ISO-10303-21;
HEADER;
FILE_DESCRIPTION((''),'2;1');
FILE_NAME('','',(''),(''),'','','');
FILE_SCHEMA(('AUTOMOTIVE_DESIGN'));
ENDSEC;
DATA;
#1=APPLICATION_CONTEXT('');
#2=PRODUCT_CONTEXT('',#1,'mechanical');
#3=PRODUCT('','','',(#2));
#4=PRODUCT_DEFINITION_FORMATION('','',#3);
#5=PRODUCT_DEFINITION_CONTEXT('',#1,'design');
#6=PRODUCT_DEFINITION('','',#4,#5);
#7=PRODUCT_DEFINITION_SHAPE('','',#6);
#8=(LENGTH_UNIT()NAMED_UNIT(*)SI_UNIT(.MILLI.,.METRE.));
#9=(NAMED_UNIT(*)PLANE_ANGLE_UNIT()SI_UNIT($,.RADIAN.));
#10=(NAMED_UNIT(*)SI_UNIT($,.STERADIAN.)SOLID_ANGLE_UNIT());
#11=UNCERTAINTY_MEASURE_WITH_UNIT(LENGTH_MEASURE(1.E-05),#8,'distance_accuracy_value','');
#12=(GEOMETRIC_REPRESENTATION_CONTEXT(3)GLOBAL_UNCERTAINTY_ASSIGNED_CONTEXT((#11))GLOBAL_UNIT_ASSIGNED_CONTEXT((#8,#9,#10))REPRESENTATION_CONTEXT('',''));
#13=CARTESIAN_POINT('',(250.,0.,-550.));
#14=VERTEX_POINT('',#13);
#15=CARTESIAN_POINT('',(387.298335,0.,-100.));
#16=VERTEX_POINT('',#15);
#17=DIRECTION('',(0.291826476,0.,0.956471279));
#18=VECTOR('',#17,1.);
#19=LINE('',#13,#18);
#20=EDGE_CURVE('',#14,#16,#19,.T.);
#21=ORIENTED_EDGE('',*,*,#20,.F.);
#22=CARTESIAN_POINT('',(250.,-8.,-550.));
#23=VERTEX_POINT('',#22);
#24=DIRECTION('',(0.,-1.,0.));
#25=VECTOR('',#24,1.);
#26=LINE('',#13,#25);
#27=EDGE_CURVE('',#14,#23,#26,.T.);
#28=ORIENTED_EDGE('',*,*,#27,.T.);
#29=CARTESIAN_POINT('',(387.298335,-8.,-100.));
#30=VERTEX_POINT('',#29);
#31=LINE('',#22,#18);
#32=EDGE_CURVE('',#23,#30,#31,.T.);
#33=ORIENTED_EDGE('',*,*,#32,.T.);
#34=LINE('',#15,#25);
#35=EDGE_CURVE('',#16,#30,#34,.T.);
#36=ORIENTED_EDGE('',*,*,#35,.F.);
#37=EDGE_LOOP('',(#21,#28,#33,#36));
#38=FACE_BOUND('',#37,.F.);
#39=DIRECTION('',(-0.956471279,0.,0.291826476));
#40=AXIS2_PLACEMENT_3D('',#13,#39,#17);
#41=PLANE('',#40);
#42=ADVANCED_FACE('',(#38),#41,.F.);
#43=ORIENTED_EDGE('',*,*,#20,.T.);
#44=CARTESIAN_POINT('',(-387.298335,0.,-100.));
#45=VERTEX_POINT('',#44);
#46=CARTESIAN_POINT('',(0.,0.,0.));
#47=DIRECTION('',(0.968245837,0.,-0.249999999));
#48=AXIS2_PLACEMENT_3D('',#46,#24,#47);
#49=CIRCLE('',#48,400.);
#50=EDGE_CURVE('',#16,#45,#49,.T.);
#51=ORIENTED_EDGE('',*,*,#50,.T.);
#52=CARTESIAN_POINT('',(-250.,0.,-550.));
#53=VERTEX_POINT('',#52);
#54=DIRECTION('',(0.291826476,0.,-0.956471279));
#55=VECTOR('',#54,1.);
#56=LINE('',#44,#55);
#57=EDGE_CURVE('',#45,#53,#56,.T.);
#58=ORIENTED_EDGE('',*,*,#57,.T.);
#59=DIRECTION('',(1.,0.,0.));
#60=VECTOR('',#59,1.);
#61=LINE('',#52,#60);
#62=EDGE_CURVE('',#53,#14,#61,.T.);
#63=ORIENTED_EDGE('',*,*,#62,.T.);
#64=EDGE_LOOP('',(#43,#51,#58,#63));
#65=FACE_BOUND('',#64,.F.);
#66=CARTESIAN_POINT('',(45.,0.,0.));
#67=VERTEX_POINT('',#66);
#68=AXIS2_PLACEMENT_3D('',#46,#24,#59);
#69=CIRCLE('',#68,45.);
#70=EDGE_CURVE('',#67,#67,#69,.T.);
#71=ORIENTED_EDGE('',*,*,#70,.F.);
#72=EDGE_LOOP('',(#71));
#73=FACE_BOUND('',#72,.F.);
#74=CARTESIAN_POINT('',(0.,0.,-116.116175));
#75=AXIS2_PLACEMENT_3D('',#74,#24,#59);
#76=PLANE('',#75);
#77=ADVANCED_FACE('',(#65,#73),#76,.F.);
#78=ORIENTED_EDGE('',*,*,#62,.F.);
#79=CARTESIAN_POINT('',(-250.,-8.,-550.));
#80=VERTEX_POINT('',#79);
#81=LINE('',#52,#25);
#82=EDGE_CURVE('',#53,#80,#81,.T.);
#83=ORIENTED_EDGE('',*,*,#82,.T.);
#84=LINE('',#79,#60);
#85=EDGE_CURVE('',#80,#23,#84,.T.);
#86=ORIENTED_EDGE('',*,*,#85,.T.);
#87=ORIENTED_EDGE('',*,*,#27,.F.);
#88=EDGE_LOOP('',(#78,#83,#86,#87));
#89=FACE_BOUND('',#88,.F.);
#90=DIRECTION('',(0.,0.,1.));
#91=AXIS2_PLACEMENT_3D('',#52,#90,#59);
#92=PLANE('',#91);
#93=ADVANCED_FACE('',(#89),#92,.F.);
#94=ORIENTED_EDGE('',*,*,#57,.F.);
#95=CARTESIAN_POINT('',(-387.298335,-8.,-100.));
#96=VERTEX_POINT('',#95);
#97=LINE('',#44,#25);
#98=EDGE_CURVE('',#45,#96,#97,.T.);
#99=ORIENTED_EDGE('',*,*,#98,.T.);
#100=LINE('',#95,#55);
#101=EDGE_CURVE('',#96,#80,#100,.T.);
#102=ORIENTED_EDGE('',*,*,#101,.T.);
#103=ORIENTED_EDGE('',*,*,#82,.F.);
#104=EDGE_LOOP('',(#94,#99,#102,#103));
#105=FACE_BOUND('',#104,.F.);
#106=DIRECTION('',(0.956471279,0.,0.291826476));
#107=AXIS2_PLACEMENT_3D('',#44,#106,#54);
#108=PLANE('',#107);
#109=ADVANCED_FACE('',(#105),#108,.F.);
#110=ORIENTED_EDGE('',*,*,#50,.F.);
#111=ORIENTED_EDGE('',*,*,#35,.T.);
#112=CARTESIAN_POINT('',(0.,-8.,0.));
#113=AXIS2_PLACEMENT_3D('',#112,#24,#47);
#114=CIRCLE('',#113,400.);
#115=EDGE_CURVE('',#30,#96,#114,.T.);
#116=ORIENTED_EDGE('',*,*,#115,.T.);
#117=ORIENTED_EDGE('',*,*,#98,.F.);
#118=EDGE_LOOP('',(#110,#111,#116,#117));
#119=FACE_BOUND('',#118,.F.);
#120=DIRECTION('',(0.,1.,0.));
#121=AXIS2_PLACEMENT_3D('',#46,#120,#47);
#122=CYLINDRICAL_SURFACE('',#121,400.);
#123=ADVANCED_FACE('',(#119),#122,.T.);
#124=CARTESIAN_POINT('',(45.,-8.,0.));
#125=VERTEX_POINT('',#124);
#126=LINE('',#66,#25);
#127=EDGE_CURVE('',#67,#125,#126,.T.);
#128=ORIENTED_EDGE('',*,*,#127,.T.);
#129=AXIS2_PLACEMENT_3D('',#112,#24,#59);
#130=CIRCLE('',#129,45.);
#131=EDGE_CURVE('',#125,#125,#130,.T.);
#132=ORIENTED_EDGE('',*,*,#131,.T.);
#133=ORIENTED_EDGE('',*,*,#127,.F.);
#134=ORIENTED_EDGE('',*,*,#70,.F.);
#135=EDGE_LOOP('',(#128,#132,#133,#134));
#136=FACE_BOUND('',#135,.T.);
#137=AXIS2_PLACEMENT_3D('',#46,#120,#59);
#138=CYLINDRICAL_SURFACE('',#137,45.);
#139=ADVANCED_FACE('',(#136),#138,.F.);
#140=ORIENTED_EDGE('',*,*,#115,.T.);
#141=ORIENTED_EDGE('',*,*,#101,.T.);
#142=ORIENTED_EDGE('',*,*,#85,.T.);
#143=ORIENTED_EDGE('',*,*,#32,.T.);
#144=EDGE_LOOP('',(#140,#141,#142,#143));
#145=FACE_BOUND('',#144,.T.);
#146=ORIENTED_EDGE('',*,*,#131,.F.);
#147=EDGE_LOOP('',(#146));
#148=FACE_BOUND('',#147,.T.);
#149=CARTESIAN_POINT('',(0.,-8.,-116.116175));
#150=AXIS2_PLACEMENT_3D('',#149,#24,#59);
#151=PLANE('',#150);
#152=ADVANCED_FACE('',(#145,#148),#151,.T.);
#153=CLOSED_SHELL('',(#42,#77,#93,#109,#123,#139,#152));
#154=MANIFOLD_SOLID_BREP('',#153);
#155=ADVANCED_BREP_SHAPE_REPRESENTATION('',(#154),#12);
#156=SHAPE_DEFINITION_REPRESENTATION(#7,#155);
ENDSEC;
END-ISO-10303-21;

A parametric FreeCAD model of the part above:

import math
import FreeCAD as App
import Part
import Sketcher

V = App.Vector

doc = App.newDocument("Part")
body = doc.addObject("PartDesign::Body", "Body")

sketch1 = body.newObject("Sketcher::SketchObject", "Sketch")
sketch1.AttachmentSupport = (doc.getObject("XZ_Plane"), [""])
sketch1.MapMode = "FlatFace"
sketch1.addGeometry(Part.LineSegment(V(250, -550, 0), V(387.298335, -100, 0)), False)
sketch1.addGeometry(Part.ArcOfCircle(Part.Circle(V(0, 0, 0), V(0, 0, 1), 400), math.radians(-14.477512), math.radians(194.477512)), False)
sketch1.addGeometry(Part.LineSegment(V(-387.298335, -100, 0), V(-250, -550, 0)), False)
sketch1.addGeometry(Part.LineSegment(V(-250, -550, 0), V(250, -550, 0)), False)
sketch1.addGeometry(Part.Circle(V(0, 0, 0), V(0, 0, 1), 45), False)
sketch1.addConstraint(Sketcher.Constraint("Coincident", 0, 2, 1, 1))
sketch1.addConstraint(Sketcher.Constraint("Coincident", 1, 2, 2, 1))
sketch1.addConstraint(Sketcher.Constraint("Coincident", 2, 2, 3, 1))
sketch1.addConstraint(Sketcher.Constraint("Coincident", 3, 2, 0, 1))
sketch1.addConstraint(Sketcher.Constraint("Horizontal", 3))
sketch1.addConstraint(Sketcher.Constraint("Coincident", 1, 3, -1, 1))
sketch1.addConstraint(Sketcher.Constraint("Coincident", 4, 3, -1, 1))
sketch1.addConstraint(Sketcher.Constraint("Horizontal", 0, 2, 1, 2))
sketch1.addConstraint(Sketcher.Constraint("Equal", 0, 2))
sketch1.addConstraint(Sketcher.Constraint("Diameter", 4, 90.0))
sketch1.addConstraint(Sketcher.Constraint("Radius", 1, 400.0))
sketch1.addConstraint(Sketcher.Constraint("DistanceX", 3, 1, 3, 2, 500.0))
sketch1.addConstraint(Sketcher.Constraint("DistanceY", 0, 2, -1, 1, 100.0))
sketch1.addConstraint(Sketcher.Constraint("DistanceY", 2, 2, -1, 1, 550.0))
pad1 = body.newObject("PartDesign::Pad", "Pad")
pad1.Profile = sketch1
pad1.Length = 8

doc.recompute()
